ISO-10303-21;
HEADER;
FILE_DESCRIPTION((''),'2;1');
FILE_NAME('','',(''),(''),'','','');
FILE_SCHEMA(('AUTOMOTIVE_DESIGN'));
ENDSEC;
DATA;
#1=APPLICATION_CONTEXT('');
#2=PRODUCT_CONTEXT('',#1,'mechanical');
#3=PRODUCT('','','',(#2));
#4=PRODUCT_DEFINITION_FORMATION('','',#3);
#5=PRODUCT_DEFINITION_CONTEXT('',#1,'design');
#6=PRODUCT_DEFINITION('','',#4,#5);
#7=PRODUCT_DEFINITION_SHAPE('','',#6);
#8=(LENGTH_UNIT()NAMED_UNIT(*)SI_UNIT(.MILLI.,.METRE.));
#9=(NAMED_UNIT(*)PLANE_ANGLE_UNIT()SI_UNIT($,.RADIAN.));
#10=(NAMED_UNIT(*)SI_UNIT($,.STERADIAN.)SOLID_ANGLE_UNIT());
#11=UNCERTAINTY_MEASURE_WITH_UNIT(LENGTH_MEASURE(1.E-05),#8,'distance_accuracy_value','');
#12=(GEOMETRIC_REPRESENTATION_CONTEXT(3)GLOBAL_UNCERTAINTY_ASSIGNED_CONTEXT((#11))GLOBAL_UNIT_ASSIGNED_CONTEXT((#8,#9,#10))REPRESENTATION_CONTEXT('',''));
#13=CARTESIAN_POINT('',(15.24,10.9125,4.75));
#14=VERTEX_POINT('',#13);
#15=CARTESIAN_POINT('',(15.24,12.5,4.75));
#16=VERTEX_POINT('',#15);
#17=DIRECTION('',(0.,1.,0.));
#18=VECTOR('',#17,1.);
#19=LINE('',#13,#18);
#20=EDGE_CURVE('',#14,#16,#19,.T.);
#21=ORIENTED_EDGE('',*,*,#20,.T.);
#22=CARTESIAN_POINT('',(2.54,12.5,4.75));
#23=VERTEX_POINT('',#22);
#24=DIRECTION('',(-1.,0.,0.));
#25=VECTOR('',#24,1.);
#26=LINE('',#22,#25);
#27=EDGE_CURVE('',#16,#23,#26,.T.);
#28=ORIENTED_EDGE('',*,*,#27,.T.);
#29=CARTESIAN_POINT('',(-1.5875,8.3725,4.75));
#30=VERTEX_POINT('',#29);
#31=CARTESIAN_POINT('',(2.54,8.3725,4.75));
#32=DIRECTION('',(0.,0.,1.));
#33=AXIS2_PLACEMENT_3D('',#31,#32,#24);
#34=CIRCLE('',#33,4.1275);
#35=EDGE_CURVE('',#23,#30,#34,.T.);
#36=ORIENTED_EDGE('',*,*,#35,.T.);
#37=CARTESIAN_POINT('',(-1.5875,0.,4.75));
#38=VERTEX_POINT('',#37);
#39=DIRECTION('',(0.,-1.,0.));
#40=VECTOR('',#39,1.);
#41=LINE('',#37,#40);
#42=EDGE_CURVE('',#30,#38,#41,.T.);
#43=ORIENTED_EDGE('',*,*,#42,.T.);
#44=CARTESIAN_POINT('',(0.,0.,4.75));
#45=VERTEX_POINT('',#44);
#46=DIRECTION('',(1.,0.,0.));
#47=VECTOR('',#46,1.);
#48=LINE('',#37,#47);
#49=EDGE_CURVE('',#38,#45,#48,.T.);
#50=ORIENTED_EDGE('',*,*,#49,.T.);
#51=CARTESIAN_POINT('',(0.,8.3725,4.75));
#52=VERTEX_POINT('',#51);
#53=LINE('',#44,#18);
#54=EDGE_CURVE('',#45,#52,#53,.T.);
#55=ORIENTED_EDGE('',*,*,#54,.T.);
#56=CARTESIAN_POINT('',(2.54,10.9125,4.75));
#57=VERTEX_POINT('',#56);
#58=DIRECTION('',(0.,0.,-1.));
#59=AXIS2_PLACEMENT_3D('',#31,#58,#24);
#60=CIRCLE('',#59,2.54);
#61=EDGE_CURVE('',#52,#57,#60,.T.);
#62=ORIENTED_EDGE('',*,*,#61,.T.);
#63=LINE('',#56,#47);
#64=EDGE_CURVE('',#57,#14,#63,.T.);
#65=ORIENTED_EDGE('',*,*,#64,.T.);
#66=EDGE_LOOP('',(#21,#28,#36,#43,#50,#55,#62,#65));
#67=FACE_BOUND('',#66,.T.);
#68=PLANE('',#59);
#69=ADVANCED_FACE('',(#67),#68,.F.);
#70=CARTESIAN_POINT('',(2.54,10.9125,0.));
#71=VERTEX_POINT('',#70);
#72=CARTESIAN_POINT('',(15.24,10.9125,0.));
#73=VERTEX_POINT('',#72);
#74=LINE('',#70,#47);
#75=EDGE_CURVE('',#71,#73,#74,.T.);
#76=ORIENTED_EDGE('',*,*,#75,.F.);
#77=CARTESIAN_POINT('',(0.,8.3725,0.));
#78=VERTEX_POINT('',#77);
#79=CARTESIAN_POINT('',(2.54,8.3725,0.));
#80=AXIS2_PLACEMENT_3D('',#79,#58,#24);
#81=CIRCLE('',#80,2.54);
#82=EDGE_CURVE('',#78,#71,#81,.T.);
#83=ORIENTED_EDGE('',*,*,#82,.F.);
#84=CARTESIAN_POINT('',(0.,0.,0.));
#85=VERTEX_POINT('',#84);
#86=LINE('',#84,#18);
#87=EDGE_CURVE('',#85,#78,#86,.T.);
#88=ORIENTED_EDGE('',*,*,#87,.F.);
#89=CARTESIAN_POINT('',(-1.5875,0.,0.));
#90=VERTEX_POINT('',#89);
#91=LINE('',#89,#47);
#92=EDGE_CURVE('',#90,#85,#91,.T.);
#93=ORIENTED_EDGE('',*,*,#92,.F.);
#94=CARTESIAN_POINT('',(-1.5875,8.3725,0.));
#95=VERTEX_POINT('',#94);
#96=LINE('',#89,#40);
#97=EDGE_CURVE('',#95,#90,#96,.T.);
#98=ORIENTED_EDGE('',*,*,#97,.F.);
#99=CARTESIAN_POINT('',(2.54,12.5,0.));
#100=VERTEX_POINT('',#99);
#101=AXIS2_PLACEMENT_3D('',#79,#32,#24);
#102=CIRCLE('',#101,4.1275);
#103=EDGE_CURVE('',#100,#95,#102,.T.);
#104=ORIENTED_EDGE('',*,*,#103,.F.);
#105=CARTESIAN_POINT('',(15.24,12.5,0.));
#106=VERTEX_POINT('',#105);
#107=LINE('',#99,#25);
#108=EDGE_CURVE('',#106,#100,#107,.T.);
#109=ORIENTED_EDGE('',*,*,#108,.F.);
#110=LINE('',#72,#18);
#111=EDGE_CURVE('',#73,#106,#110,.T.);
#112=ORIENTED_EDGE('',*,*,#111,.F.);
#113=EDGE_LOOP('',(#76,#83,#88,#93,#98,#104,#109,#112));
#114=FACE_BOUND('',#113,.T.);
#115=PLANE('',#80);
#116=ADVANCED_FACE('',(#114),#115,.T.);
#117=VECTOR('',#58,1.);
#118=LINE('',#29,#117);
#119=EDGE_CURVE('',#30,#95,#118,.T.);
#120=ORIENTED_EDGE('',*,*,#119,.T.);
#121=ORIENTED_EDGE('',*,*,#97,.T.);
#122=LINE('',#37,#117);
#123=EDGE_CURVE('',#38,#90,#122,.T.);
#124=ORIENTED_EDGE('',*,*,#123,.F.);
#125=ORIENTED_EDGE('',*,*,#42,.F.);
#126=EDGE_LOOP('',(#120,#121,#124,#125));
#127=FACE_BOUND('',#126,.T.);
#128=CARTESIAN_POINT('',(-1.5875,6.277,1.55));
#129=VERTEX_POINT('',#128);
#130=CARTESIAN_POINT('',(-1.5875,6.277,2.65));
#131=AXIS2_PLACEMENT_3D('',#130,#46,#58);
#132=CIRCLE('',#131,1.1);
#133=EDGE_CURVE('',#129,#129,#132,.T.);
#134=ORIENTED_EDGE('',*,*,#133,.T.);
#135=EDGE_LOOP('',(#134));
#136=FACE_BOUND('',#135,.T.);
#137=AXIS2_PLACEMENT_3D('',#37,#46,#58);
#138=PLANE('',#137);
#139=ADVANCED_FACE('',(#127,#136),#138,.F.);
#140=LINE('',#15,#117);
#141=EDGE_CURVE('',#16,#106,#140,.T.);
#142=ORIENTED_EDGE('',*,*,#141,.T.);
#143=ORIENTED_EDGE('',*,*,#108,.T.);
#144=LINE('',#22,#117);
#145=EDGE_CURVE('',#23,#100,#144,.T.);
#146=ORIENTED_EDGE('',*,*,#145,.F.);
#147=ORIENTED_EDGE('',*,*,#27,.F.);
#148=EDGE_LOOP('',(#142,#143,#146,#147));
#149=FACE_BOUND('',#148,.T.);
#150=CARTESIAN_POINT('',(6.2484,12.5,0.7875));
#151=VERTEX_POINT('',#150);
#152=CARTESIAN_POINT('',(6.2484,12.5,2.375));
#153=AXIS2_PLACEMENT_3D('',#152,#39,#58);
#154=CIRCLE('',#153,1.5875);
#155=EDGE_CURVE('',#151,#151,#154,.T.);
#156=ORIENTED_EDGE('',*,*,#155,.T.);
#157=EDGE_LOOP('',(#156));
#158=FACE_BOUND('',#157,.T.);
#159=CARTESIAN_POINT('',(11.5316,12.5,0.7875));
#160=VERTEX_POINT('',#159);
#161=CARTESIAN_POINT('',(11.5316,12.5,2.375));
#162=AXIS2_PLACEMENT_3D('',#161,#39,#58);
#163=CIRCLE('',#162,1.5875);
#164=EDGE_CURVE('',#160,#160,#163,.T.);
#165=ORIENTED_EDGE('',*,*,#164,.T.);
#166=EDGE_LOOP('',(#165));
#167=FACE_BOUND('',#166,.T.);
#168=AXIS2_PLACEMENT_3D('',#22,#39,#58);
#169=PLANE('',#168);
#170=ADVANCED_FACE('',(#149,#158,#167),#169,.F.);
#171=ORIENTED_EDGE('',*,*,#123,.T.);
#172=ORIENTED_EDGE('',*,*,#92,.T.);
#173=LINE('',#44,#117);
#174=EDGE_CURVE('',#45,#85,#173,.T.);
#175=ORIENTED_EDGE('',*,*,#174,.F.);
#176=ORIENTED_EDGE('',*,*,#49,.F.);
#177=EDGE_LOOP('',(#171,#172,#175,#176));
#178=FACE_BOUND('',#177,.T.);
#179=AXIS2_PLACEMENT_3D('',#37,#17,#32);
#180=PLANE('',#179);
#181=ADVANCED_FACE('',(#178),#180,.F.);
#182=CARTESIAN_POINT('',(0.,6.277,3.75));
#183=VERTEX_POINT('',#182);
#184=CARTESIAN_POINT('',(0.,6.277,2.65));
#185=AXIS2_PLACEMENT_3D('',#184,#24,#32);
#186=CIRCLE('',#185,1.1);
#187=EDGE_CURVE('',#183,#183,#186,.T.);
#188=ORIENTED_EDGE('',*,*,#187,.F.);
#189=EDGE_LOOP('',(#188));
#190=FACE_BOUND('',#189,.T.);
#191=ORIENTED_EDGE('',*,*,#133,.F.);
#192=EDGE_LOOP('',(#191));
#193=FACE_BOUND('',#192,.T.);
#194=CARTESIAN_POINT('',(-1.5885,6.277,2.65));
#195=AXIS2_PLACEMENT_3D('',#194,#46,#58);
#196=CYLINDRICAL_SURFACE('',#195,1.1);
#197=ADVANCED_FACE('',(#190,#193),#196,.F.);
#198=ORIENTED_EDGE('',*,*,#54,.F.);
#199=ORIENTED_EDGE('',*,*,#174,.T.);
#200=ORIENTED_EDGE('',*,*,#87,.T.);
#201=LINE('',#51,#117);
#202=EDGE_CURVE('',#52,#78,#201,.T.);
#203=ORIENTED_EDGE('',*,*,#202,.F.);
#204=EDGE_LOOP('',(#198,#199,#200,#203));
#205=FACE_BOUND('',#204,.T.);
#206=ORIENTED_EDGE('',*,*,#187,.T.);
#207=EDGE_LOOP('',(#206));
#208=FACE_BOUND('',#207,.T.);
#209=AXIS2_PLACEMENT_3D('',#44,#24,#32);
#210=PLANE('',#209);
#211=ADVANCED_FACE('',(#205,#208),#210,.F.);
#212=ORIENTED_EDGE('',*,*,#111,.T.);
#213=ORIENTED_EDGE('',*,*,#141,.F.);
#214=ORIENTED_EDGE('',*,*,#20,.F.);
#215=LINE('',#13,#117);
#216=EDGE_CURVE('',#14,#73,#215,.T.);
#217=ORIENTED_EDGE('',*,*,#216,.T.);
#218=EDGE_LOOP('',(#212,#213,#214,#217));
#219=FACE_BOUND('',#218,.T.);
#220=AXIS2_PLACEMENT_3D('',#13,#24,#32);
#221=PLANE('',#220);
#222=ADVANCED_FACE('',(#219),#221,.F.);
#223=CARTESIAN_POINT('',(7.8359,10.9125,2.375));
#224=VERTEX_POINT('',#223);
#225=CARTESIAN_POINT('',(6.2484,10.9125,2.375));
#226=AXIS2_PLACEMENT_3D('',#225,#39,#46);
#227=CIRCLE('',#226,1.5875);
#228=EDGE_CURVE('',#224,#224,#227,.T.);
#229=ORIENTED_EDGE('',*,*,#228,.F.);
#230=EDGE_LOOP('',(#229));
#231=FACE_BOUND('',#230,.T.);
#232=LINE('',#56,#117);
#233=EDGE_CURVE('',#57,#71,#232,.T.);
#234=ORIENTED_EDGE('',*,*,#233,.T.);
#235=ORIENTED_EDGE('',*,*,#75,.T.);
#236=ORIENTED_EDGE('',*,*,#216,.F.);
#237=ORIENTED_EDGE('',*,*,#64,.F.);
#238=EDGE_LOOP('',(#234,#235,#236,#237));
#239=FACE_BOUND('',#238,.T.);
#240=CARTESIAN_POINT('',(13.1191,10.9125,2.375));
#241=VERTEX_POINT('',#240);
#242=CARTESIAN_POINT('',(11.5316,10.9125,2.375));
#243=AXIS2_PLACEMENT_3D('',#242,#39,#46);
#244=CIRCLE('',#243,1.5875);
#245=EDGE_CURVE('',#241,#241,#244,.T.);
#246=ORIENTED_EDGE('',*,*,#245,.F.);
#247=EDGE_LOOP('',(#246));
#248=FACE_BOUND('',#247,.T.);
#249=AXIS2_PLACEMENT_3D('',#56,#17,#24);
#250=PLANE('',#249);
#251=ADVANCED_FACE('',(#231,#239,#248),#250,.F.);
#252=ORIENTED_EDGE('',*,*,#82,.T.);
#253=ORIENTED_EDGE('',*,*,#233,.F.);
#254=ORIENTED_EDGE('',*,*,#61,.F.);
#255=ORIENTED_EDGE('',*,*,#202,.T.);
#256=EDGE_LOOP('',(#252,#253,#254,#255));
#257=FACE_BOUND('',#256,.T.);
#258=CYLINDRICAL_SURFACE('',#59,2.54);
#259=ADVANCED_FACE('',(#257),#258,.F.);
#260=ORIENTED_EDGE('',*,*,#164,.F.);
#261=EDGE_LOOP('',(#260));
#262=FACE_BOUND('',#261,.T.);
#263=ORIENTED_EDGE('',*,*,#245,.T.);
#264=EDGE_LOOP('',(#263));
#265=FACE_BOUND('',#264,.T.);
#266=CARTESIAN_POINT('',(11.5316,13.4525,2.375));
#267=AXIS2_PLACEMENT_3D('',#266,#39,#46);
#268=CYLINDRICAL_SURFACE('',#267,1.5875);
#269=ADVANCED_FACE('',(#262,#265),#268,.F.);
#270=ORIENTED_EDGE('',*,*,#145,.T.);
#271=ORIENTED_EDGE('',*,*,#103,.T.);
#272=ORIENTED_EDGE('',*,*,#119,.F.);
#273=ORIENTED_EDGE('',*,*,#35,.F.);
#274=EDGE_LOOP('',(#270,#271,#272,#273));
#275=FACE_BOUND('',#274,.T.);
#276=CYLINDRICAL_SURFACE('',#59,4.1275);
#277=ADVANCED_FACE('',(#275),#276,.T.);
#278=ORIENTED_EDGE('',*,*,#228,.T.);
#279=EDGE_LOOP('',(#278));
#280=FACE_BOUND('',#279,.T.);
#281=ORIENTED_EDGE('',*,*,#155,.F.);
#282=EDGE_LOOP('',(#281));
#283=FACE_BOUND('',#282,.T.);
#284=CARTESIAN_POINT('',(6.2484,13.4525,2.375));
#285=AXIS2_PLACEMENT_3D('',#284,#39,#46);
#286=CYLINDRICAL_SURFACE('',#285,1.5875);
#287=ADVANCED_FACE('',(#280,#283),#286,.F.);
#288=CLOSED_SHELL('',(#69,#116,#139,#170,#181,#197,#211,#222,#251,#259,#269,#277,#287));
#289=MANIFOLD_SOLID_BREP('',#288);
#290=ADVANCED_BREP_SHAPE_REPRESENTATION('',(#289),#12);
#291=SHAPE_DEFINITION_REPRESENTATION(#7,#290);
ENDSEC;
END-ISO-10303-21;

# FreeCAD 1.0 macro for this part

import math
import FreeCAD as App
import Part
import Sketcher
Q = App.Units.Quantity

doc = App.newDocument("Part")
body = doc.addObject("PartDesign::Body", "Body")

sketch1 = doc.addObject("Sketcher::SketchObject", "Sketch")
body.addObject(sketch1)
sketch1.AttachmentSupport = (doc.XY_Plane, [""])
sketch1.MapMode = "FlatFace"
sketch1.addGeometry([
    Part.LineSegment(App.Vector(0, 0, 0), App.Vector(0, 8.4, 0)),
    Part.ArcOfCircle(Part.Circle(App.Vector(2.5, 8.4, 0), App.Vector(0, 0, 1), 2.5), math.radians(90), math.radians(180)),
    Part.LineSegment(App.Vector(2.5, 10.9, 0), App.Vector(15.2, 10.9, 0)),
    Part.LineSegment(App.Vector(15.2, 10.9, 0), App.Vector(15.2, 12.5, 0)),
    Part.LineSegment(App.Vector(15.2, 12.5, 0), App.Vector(2.5, 12.5, 0)),
    Part.ArcOfCircle(Part.Circle(App.Vector(2.5, 8.4, 0), App.Vector(0, 0, 1), 4.1), math.radians(90), math.radians(180)),
    Part.LineSegment(App.Vector(-1.6, 8.4, 0), App.Vector(-1.6, 0, 0)),
    Part.LineSegment(App.Vector(-1.6, 0, 0), App.Vector(0, 0, 0)),
], False)
sketch1.addConstraint([
    Sketcher.Constraint("Tangent", 0, 2, 1, 2),
    Sketcher.Constraint("Tangent", 1, 1, 2, 1),
    Sketcher.Constraint("Coincident", 2, 2, 3, 1),
    Sketcher.Constraint("Coincident", 3, 2, 4, 1),
    Sketcher.Constraint("Tangent", 4, 2, 5, 1),
    Sketcher.Constraint("Tangent", 5, 2, 6, 1),
    Sketcher.Constraint("Coincident", 6, 2, 7, 1),
    Sketcher.Constraint("Coincident", 7, 2, 0, 1),
    Sketcher.Constraint("Vertical", 0),
    Sketcher.Constraint("Horizontal", 2),
    Sketcher.Constraint("Vertical", 3),
    Sketcher.Constraint("Horizontal", 4),
    Sketcher.Constraint("Vertical", 6),
    Sketcher.Constraint("Horizontal", 7),
    Sketcher.Constraint("Coincident", 7, 2, -1, 1),
    Sketcher.Constraint("Coincident", 5, 3, 1, 3),
    Sketcher.Constraint("Radius", 1, Q("0.1 in")),
    Sketcher.Constraint("DistanceX", 2, 1, 2, 2, Q("0.5 in")),
    Sketcher.Constraint("Radius", 5, Q("0.1625 in")),
    Sketcher.Constraint("DistanceY", 0, 1, 0, 2, 8.3725),
])
pad1 = doc.addObject("PartDesign::Pad", "Pad")
body.addObject(pad1)
pad1.Profile = sketch1
pad1.Length = 4.75

sketch2 = doc.addObject("Sketcher::SketchObject", "Sketch001")
body.addObject(sketch2)
sketch2.AttachmentSupport = (doc.YZ_Plane, [""])
sketch2.MapMode = "FlatFace"
sketch2.addGeometry(Part.Circle(App.Vector(6.3, 2.6, 0), App.Vector(0, 0, 1), 1.1), False)
sketch2.addConstraint([
    Sketcher.Constraint("Diameter", 0, 2.2),
    Sketcher.Constraint("DistanceX", -1, 1, 0, 3, 6.277),
    Sketcher.Constraint("DistanceY", -1, 1, 0, 3, 2.65),
])
pocket1 = doc.addObject("PartDesign::Pocket", "Pocket")
body.addObject(pocket1)
pocket1.Profile = sketch2
pocket1.Length = Q("0.0625 in")

sketch3 = doc.addObject("Sketcher::SketchObject", "Sketch002")
body.addObject(sketch3)
sketch3.AttachmentSupport = (doc.XZ_Plane, [""])
sketch3.MapMode = "FlatFace"
sketch3.AttachmentOffset = App.Placement(App.Vector(0, 0, -10.9125), App.Rotation())
sketch3.addGeometry([
    Part.Circle(App.Vector(6.2, 2.4, 0), App.Vector(0, 0, 1), 1.6),
    Part.Circle(App.Vector(11.5, 2.4, 0), App.Vector(0, 0, 1), 1.6),
], False)
sketch3.addConstraint([
    Sketcher.Constraint("Equal", 0, 1),
    Sketcher.Constraint("Horizontal", 0, 3, 1, 3),
    Sketcher.Constraint("Diameter", 0, Q("0.125 in")),
    Sketcher.Constraint("DistanceX", -1, 1, 0, 3, Q("0.246 in")),
    Sketcher.Constraint("DistanceX", -1, 1, 1, 3, Q("0.454 in")),
    Sketcher.Constraint("DistanceY", -1, 1, 0, 3, 2.375),
])
pocket2 = doc.addObject("PartDesign::Pocket", "Pocket001")
body.addObject(pocket2)
pocket2.Profile = sketch3
pocket2.Length = Q("0.1 in")

doc.recompute()
